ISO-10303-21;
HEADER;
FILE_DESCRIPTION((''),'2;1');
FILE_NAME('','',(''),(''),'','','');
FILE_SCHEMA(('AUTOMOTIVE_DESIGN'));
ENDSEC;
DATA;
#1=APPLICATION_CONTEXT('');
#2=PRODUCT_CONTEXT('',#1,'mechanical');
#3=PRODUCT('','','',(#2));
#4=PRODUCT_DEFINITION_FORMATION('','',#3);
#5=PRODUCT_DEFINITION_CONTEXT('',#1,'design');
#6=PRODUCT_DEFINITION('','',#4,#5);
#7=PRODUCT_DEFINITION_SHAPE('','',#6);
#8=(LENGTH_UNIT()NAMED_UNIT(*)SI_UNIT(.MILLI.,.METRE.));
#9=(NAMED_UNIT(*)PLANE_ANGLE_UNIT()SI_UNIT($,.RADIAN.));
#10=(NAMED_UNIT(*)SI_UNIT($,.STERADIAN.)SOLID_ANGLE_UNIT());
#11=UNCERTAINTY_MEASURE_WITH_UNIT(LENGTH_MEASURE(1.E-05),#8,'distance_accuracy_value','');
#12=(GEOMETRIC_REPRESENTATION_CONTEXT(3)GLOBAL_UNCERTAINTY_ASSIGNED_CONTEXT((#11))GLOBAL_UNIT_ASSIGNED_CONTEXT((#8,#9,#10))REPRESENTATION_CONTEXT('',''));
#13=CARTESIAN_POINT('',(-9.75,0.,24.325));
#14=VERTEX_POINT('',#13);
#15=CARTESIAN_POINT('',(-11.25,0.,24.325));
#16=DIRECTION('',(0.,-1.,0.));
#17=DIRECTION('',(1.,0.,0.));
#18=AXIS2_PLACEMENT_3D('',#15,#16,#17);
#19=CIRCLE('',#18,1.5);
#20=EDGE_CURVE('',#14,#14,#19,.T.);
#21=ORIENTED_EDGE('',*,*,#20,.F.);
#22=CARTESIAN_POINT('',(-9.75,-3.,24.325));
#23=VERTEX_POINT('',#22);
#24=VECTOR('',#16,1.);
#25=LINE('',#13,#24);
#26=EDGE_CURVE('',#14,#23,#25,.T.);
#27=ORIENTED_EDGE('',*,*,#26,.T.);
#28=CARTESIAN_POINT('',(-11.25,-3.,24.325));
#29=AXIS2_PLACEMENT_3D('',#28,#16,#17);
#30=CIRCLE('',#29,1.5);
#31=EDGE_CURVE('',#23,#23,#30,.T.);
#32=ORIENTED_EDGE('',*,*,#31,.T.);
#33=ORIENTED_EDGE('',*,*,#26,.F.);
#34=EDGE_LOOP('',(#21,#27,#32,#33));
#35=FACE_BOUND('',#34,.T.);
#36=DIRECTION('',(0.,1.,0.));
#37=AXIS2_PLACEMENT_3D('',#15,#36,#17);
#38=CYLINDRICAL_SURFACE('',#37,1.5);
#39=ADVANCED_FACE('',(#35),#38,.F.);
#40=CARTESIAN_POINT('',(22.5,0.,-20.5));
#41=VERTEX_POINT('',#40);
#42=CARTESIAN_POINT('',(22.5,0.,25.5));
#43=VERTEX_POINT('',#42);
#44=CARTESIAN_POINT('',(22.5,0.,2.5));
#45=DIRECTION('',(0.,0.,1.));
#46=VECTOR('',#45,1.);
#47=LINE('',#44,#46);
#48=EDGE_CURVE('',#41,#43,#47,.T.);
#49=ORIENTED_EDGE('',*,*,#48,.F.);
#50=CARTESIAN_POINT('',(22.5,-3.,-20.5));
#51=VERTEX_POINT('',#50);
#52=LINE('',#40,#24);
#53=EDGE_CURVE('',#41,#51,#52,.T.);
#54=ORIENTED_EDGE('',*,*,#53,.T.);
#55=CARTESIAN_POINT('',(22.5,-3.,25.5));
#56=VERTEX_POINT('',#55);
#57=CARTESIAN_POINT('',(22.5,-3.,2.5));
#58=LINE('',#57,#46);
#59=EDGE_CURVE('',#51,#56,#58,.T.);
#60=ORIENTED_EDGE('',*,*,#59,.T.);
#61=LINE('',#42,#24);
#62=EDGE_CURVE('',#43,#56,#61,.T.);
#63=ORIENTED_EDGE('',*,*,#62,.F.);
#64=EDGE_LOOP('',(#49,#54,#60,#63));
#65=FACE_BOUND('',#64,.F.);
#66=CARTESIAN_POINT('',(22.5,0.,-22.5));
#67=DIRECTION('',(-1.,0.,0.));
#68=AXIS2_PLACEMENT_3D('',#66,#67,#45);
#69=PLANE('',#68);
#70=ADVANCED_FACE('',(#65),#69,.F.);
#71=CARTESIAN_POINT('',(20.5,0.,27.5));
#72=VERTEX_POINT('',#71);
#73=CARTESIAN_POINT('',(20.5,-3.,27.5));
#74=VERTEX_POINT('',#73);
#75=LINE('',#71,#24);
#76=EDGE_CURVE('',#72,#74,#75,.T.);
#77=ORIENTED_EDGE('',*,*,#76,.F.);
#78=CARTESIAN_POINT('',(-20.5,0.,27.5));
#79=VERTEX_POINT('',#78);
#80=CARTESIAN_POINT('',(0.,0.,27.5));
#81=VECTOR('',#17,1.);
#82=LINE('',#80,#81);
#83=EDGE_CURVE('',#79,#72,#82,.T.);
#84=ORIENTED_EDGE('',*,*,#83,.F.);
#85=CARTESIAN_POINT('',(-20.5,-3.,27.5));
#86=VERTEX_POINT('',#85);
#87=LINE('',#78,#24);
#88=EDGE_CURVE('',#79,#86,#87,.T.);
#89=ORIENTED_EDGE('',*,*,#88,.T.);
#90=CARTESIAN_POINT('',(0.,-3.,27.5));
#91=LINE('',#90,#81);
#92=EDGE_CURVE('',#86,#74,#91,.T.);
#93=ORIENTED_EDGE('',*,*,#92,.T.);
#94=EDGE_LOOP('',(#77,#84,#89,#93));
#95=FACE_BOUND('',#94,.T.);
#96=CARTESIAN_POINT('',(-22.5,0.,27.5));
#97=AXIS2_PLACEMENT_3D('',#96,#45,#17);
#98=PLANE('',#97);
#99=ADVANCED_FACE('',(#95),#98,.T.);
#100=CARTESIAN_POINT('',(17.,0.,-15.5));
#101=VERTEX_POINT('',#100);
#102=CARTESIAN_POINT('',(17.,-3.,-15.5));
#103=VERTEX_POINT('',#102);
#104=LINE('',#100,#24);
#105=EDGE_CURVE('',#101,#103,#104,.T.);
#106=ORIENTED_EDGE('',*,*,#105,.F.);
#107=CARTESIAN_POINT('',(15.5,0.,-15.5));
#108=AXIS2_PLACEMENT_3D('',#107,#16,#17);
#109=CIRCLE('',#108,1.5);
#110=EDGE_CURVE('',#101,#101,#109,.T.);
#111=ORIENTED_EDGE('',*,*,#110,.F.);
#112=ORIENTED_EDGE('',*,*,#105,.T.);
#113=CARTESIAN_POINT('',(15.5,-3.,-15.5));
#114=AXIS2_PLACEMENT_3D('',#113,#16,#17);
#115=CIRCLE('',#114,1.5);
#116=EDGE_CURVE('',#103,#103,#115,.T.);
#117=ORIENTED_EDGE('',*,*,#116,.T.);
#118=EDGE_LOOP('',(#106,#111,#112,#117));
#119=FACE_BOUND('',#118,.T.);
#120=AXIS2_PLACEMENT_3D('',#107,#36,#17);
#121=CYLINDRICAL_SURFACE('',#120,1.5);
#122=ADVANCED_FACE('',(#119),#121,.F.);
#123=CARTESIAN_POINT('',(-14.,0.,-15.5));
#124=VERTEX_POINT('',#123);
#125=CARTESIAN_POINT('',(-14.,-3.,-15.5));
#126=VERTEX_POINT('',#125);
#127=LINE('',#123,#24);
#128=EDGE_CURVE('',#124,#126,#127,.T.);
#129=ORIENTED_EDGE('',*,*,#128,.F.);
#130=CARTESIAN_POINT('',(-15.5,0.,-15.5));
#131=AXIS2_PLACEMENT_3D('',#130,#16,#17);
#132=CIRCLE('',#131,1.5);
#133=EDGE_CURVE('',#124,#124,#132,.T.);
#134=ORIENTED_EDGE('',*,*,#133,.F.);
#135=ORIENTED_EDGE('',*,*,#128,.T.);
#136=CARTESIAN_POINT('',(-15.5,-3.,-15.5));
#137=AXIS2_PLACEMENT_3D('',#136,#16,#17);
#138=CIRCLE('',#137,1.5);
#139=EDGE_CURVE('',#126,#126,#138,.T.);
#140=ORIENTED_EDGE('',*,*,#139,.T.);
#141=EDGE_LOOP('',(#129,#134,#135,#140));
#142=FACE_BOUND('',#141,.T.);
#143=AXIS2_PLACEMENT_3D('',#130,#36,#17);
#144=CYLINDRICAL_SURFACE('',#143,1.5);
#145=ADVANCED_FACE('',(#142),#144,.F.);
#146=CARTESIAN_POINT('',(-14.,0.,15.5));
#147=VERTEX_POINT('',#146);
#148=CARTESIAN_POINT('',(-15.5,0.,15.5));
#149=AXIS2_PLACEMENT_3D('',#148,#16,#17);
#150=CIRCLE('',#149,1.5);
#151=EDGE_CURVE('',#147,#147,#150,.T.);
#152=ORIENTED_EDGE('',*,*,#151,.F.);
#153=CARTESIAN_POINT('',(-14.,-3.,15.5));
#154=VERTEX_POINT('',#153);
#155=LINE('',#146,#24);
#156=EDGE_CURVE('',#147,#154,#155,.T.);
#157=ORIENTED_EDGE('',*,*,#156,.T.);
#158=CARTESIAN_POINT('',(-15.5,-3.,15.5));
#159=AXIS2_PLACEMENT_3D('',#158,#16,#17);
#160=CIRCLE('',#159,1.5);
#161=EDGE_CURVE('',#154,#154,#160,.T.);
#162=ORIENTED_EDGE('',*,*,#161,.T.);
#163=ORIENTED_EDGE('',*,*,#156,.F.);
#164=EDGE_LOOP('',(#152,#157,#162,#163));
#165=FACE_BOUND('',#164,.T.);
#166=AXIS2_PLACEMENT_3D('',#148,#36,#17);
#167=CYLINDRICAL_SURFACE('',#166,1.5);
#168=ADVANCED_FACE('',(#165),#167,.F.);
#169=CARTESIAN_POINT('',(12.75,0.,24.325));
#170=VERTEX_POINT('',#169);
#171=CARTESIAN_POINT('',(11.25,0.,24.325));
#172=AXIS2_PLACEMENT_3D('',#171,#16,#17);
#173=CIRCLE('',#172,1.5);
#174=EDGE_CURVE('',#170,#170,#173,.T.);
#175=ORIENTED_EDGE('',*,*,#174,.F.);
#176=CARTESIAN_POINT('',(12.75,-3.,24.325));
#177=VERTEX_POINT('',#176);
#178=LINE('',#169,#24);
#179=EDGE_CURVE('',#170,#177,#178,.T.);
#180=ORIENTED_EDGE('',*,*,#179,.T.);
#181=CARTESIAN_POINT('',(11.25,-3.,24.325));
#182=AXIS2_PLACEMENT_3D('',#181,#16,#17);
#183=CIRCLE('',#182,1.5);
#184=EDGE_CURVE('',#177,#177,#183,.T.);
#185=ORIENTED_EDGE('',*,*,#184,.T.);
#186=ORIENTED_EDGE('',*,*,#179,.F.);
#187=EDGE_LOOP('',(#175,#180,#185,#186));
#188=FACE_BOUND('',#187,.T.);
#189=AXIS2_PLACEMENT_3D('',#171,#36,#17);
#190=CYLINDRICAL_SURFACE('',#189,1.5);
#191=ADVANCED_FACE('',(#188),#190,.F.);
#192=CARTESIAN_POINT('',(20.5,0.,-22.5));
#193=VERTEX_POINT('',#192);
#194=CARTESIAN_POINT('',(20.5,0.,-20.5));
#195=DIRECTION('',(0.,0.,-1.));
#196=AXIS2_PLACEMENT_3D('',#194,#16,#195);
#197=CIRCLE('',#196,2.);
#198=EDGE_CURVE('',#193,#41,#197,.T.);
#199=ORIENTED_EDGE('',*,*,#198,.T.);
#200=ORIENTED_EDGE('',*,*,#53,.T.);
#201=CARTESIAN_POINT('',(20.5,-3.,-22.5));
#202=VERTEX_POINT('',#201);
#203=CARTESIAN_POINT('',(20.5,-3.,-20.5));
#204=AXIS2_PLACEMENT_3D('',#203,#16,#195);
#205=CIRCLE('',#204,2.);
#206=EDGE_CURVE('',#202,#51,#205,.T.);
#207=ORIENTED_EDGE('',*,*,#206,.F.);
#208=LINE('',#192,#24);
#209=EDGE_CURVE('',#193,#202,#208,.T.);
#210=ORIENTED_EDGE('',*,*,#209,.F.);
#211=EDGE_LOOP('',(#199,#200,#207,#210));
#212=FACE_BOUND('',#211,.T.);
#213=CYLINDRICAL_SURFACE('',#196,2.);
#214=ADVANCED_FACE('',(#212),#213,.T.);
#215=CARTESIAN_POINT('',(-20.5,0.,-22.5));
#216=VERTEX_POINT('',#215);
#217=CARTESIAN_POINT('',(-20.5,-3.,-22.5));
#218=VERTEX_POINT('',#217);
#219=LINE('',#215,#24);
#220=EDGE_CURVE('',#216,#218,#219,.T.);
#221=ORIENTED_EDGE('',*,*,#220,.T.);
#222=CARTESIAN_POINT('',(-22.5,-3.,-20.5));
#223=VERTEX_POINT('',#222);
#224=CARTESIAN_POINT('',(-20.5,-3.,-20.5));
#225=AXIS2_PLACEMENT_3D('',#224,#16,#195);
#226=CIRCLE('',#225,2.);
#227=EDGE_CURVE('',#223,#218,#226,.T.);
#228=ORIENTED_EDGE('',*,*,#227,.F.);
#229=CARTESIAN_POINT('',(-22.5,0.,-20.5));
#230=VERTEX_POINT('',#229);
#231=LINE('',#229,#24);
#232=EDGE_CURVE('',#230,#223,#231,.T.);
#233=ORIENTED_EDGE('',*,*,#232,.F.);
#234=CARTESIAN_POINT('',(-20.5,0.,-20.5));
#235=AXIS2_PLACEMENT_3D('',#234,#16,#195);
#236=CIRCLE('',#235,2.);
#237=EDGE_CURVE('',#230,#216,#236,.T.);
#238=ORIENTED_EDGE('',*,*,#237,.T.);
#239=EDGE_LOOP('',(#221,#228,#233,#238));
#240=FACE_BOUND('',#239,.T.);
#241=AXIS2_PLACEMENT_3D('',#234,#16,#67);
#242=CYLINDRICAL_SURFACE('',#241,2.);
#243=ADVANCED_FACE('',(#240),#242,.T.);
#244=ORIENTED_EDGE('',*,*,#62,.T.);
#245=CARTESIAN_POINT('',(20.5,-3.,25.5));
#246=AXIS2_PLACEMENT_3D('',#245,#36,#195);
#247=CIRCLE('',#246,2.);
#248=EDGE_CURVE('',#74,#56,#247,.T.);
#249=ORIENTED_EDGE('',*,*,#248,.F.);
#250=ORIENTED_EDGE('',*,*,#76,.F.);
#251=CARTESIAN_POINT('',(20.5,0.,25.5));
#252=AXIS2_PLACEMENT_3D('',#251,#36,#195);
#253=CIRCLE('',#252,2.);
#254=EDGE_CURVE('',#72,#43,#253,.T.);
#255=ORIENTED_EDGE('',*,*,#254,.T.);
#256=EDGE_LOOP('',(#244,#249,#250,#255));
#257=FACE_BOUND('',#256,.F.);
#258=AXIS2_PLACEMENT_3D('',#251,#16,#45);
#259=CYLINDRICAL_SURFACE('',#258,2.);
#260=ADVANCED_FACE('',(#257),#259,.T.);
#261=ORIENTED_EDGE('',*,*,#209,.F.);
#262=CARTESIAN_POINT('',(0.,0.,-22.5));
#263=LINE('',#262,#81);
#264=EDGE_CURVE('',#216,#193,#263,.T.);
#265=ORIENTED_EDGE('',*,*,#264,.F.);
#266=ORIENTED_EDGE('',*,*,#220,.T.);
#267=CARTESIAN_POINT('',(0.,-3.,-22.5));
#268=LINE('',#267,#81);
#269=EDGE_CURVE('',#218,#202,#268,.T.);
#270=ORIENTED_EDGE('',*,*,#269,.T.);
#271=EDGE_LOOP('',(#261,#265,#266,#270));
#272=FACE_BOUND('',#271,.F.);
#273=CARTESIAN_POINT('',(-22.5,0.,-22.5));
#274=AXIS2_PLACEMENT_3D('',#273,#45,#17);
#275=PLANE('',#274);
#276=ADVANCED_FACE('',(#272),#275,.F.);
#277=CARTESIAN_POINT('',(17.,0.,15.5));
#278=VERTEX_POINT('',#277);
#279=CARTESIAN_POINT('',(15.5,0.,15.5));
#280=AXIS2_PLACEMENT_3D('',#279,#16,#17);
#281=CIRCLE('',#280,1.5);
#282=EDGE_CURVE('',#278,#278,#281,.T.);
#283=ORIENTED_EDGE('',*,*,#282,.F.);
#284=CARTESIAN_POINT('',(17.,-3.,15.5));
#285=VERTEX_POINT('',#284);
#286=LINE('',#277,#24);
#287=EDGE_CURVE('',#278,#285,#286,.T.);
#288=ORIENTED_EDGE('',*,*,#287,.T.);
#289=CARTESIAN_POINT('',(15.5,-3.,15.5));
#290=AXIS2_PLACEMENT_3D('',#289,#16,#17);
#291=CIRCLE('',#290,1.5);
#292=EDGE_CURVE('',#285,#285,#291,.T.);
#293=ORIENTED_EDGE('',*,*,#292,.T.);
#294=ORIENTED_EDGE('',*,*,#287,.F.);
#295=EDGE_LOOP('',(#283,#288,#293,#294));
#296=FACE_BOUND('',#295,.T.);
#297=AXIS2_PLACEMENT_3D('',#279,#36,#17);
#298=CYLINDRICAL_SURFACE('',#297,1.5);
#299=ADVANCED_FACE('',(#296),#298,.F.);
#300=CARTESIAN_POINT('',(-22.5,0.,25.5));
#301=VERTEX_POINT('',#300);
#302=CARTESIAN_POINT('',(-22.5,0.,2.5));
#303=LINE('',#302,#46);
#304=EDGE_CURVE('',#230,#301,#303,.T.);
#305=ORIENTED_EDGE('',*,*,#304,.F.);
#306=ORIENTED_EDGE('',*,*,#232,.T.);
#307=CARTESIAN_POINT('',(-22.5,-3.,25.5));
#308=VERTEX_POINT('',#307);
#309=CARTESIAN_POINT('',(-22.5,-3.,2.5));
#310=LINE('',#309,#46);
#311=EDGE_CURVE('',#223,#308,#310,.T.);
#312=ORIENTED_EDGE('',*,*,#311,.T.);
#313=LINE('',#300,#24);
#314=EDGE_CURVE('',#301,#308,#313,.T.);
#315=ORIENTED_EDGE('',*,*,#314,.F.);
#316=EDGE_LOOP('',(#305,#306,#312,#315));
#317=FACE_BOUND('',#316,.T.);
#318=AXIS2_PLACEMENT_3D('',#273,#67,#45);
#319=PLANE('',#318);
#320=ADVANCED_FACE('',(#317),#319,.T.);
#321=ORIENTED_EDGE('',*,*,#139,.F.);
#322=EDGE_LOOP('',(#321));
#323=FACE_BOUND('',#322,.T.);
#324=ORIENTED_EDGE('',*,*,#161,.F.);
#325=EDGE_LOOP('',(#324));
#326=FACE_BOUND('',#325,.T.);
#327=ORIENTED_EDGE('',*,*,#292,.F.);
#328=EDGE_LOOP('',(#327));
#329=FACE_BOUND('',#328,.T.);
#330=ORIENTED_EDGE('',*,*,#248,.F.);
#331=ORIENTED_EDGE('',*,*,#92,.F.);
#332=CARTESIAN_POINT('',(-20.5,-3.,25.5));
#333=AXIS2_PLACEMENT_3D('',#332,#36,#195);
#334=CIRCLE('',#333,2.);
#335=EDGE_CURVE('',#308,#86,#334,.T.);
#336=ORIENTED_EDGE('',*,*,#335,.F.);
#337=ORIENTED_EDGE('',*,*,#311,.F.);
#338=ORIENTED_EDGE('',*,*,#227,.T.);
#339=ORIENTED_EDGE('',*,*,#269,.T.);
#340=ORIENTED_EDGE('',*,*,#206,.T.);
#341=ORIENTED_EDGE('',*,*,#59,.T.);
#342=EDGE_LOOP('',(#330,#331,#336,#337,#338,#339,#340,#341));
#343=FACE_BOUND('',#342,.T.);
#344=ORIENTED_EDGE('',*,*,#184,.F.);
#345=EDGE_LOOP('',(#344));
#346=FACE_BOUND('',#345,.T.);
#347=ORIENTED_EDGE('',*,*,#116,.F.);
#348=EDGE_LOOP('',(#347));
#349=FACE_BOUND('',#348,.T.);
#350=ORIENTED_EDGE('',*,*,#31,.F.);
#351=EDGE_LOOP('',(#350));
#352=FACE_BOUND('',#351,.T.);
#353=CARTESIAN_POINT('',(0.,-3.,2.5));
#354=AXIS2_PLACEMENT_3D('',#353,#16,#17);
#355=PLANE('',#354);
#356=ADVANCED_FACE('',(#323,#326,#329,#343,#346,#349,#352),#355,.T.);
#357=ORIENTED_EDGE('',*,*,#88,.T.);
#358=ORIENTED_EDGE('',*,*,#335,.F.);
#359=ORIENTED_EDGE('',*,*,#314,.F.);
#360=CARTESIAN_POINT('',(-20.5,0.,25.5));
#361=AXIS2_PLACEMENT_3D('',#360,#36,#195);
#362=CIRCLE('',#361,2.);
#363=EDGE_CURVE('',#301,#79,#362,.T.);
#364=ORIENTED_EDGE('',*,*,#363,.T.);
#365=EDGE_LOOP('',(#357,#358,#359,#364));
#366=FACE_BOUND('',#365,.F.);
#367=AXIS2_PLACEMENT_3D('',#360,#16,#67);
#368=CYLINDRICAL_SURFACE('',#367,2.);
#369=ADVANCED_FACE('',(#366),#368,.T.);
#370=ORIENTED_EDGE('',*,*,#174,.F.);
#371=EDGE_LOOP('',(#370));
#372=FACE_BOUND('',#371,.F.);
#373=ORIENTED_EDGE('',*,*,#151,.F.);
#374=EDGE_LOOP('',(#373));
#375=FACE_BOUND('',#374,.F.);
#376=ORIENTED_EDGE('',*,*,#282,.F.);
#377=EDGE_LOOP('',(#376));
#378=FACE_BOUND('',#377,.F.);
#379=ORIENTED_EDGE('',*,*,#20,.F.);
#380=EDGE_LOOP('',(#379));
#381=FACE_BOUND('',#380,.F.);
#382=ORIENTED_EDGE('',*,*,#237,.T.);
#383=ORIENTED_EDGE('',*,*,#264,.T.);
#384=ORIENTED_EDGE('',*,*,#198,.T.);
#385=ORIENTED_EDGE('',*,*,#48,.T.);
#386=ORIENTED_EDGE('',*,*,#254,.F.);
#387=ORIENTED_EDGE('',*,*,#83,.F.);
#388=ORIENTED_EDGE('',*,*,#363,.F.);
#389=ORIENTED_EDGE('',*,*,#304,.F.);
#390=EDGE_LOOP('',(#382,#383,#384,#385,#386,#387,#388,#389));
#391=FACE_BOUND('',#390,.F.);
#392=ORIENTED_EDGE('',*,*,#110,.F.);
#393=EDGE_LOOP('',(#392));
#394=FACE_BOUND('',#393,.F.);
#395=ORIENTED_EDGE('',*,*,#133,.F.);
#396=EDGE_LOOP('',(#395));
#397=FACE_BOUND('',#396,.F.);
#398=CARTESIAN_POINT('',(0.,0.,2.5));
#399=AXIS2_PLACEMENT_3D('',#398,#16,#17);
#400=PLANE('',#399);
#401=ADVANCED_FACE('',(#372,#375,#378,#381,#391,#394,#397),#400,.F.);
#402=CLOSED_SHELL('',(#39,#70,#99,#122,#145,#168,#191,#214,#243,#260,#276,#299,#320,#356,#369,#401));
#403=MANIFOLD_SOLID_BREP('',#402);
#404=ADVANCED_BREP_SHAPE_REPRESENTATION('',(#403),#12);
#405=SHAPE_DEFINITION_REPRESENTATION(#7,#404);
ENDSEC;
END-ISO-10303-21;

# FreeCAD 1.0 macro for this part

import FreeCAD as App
import Part
import Sketcher
Q = App.Units.Quantity


def edges_at(feature, points):
    """Names of the edges that pass closest to the given points."""
    edges = feature.Shape.Edges
    near = lambda p: min(range(len(edges)), key=lambda i: edges[i].distToShape(Part.Vertex(*p))[0])
    return sorted({f"Edge{near(p) + 1}" for p in points})

doc = App.newDocument("Part")
body = doc.addObject("PartDesign::Body", "Body")

sketch1 = body.newObject("Sketcher::SketchObject", "Sketch")
sketch1.AttachmentSupport = (doc.getObject("XZ_Plane"), [""])
sketch1.MapMode = "FlatFace"
sketch1.addGeometry(Part.LineSegment(App.Vector(-22.5, 27.5, 0), App.Vector(-22.5, -22.5, 0)), False)
sketch1.addGeometry(Part.LineSegment(App.Vector(-22.5, -22.5, 0), App.Vector(22.5, -22.5, 0)), False)
sketch1.addGeometry(Part.LineSegment(App.Vector(22.5, -22.5, 0), App.Vector(22.5, 27.5, 0)), False)
sketch1.addGeometry(Part.LineSegment(App.Vector(22.5, 27.5, 0), App.Vector(-22.5, 27.5, 0)), False)
sketch1.addGeometry(Part.Circle(App.Vector(-15.5, -15.5, 0), App.Vector(0, 0, 1), 1.5), False)
sketch1.addGeometry(Part.Circle(App.Vector(15.5, -15.5, 0), App.Vector(0, 0, 1), 1.5), False)
sketch1.addGeometry(Part.Circle(App.Vector(-15.5, 15.5, 0), App.Vector(0, 0, 1), 1.5), False)
sketch1.addGeometry(Part.Circle(App.Vector(-11.2, 24.3, 0), App.Vector(0, 0, 1), 1.5), False)
sketch1.addGeometry(Part.Circle(App.Vector(15.5, 15.5, 0), App.Vector(0, 0, 1), 1.5), False)
sketch1.addGeometry(Part.Circle(App.Vector(11.2, 24.3, 0), App.Vector(0, 0, 1), 1.5), False)
sketch1.addConstraint(Sketcher.Constraint("Coincident", 0, 2, 1, 1))
sketch1.addConstraint(Sketcher.Constraint("Coincident", 1, 2, 2, 1))
sketch1.addConstraint(Sketcher.Constraint("Coincident", 2, 2, 3, 1))
sketch1.addConstraint(Sketcher.Constraint("Coincident", 3, 2, 0, 1))
sketch1.addConstraint(Sketcher.Constraint("Vertical", 0))
sketch1.addConstraint(Sketcher.Constraint("Horizontal", 1))
sketch1.addConstraint(Sketcher.Constraint("Vertical", 2))
sketch1.addConstraint(Sketcher.Constraint("Horizontal", 3))
sketch1.addConstraint(Sketcher.Constraint("Equal", 4, 5))
sketch1.addConstraint(Sketcher.Constraint("Equal", 5, 6))
sketch1.addConstraint(Sketcher.Constraint("Equal", 6, 7))
sketch1.addConstraint(Sketcher.Constraint("Equal", 7, 8))
sketch1.addConstraint(Sketcher.Constraint("Equal", 8, 9))
sketch1.addConstraint(Sketcher.Constraint("Symmetric", 5, 3, 6, 3, -1, 1))
sketch1.addConstraint(Sketcher.Constraint("Symmetric", 4, 3, 8, 3, -1, 1))
sketch1.addConstraint(Sketcher.Constraint("Symmetric", 4, 3, 5, 3, -2))
sketch1.addConstraint(Sketcher.Constraint("Symmetric", 7, 3, 9, 3, -2))
sketch1.addConstraint(Sketcher.Constraint("Diameter", 4, Q("3 mm")))
sketch1.addConstraint(Sketcher.Constraint("DistanceX", 1, 1, 1, 2, Q("45 mm")))
sketch1.addConstraint(Sketcher.Constraint("DistanceY", 0, 2, 0, 1, Q("50 mm")))
sketch1.addConstraint(Sketcher.Constraint("DistanceX", 4, 3, 5, 3, Q("31 mm")))
sketch1.addConstraint(Sketcher.Constraint("DistanceY", 4, 3, 6, 3, Q("31 mm")))
sketch1.addConstraint(Sketcher.Constraint("DistanceX", 0, 2, 4, 3, Q("7 mm")))
sketch1.addConstraint(Sketcher.Constraint("DistanceY", 0, 2, 4, 3, Q("7 mm")))
sketch1.addConstraint(Sketcher.Constraint("DistanceX", 7, 3, 9, 3, Q("22.5 mm")))
sketch1.addConstraint(Sketcher.Constraint("DistanceY", -1, 1, 7, 3, Q("24.325 mm")))
pad1 = body.newObject("PartDesign::Pad", "Pad")
pad1.Profile = sketch1
pad1.Length = 3
doc.recompute()

fillet = body.newObject("PartDesign::Fillet", "Fillet")
fillet.Base = (pad1, edges_at(pad1, [
    (22.5, -1.5, 27.5),
    (22.5, -1.5, -22.5),
    (-22.5, -1.5, -22.5),
    (-22.5, -1.5, 27.5),
]))
fillet.Radius = 2

doc.recompute()
